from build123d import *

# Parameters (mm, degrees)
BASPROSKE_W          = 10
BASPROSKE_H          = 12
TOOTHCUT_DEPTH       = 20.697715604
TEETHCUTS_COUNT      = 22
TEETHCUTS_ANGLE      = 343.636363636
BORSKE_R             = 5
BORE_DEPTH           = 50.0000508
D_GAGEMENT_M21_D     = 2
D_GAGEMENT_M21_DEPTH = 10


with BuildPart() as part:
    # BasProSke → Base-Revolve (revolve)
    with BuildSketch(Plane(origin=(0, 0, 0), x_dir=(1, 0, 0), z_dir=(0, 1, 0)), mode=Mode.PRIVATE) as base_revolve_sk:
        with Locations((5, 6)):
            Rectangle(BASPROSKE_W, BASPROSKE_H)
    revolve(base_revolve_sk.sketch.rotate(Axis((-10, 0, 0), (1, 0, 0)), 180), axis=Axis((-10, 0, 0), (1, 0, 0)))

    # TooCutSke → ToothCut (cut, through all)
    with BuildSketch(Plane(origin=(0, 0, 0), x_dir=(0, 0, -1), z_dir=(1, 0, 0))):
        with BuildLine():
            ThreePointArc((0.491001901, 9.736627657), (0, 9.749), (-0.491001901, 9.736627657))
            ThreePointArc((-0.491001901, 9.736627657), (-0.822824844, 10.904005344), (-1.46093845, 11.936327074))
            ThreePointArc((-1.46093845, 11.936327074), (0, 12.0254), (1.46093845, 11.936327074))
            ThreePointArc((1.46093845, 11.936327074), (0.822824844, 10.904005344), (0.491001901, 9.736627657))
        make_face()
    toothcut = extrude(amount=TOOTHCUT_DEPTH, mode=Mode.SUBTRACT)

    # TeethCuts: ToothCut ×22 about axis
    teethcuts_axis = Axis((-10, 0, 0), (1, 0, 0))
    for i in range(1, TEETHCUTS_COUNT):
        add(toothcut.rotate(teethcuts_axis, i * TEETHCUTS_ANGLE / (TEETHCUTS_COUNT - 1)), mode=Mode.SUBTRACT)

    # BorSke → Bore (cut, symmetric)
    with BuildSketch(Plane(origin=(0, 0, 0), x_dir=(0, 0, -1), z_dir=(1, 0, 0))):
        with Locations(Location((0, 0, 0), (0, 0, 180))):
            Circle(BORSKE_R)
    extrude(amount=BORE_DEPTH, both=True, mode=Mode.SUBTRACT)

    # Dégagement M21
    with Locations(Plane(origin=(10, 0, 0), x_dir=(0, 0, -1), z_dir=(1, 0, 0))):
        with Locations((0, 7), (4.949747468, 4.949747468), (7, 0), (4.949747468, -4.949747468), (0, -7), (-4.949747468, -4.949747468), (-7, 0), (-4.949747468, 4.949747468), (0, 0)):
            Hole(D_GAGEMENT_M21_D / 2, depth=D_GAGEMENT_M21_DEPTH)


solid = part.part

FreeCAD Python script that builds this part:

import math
import FreeCAD as App
import Part
import Sketcher
from FreeCAD import Vector

doc = App.newDocument("Part")
params = doc.addObject("Spreadsheet::Sheet", "Params")
for row, (alias, value) in enumerate([
    ("sketch1_width", "10 mm"),
    ("sketch1_height", "12 mm"),
    ("revolution_angle", "360 deg"),
    ("sketch2_radius", "4.4 mm"),
    ("sketch3_diameter", "10 mm"),
    ("pocket2_length", "100.000102 mm"),
    ("sketch4_diameter", "2 mm"),
    ("hole_diameter", "2 mm"),
    ("hole_depth", "10 mm"),
], start=1):
    params.set(f"A{row}", alias)
    params.set(f"B{row}", "=" + value)
    params.setAlias(f"B{row}", alias)

body = doc.addObject("PartDesign::Body", "Body")

# Sketch on XZ plane
sketch1 = body.newObject("Sketcher::SketchObject", "Sketch")
sketch1.AttachmentSupport = (doc.getObject("XZ_Plane"), [""])
sketch1.MapMode = "FlatFace"
sketch1.addGeometry([
    Part.LineSegment(Vector(0, -12, 0), Vector(0, 0, 0)),
    Part.LineSegment(Vector(0, 0, 0), Vector(10, 0, 0)),
    Part.LineSegment(Vector(10, 0, 0), Vector(10, -12, 0)),
    Part.LineSegment(Vector(10, -12, 0), Vector(0, -12, 0)),
], False)
sketch1.addConstraint([
    Sketcher.Constraint("Coincident", 0, 2, 1, 1),
    Sketcher.Constraint("Coincident", 1, 2, 2, 1),
    Sketcher.Constraint("Coincident", 2, 2, 3, 1),
    Sketcher.Constraint("Coincident", 3, 2, 0, 1),
    Sketcher.Constraint("Vertical", 0),
    Sketcher.Constraint("Horizontal", 1),
    Sketcher.Constraint("Vertical", 2),
    Sketcher.Constraint("Horizontal", 3),
    Sketcher.Constraint("Coincident", 0, 2, -1, 1),
    Sketcher.Constraint("DistanceX", 1, 1, 1, 2, 10.0),
    Sketcher.Constraint("DistanceY", 0, 1, 0, 2, 12.0),
])
sketch1.setExpression("Constraints[9]", "Params.sketch1_width")
sketch1.setExpression("Constraints[10]", "Params.sketch1_height")
revolution = body.newObject("PartDesign::Revolution", "Revolution")
revolution.Profile = sketch1
revolution.ReferenceAxis = (sketch1, ["H_Axis"])
revolution.setExpression("Angle", "Params.revolution_angle")

# Sketch on YZ plane
sketch2 = body.newObject("Sketcher::SketchObject", "Sketch001")
sketch2.AttachmentSupport = (doc.getObject("YZ_Plane"), [""])
sketch2.MapMode = "FlatFace"
sketch2.addGeometry([
    Part.ArcOfCircle(Part.Circle(Vector(0, 0, 0), Vector(0, 0, 1), 9.749), math.radians(-2.886885), math.radians(2.886885)),
    Part.ArcOfCircle(Part.Circle(Vector(9.128784, -4.848814, 0), Vector(0, 0, 1), 4.4), math.radians(50.351348), math.radians(82.059402)),
    Part.ArcOfCircle(Part.Circle(Vector(0, 0, 0), Vector(0, 0, 1), 12.0254), math.radians(-6.977971), math.radians(6.977971)),
    Part.ArcOfCircle(Part.Circle(Vector(9.128784, 4.848814, 0), Vector(0, 0, 1), 4.4), math.radians(-82.059402), math.radians(-50.351348)),
], False)
sketch2.addConstraint([
    Sketcher.Constraint("Coincident", 0, 1, 1, 2),
    Sketcher.Constraint("Coincident", 1, 1, 2, 1),
    Sketcher.Constraint("Coincident", 2, 2, 3, 2),
    Sketcher.Constraint("Coincident", 3, 1, 0, 2),
    Sketcher.Constraint("Coincident", 0, 3, -1, 1),
    Sketcher.Constraint("Coincident", 2, 3, -1, 1),
    Sketcher.Constraint("Equal", 1, 3),
    Sketcher.Constraint("Symmetric", 1, 3, 3, 3, -1),
    Sketcher.Constraint("Radius", 1, 4.4),
    Sketcher.Constraint("Radius", 0, 9.749),
    Sketcher.Constraint("Radius", 2, 12.0254),
    Sketcher.Constraint("DistanceY", 0, 1, -1, 1, 0.491002),
    Sketcher.Constraint("DistanceX", 0, 1, 1, 1, 2.199699),
])
sketch2.setExpression("Constraints[8]", "Params.sketch2_radius")
pocket1 = body.newObject("PartDesign::Pocket", "Pocket")
pocket1.Profile = sketch2
pocket1.Type = "ThroughAll"
pocket1.Reversed = True
doc.recompute()

polarpattern = body.newObject("PartDesign::PolarPattern", "PolarPattern")
polarpattern.Originals = [pocket1]
polarpattern.Axis = (doc.getObject("X_Axis"), [""])
polarpattern.Angle = 360
polarpattern.Occurrences = 22
body.Tip = polarpattern

# Sketch on YZ plane
sketch3 = body.newObject("Sketcher::SketchObject", "Sketch002")
sketch3.AttachmentSupport = (doc.getObject("YZ_Plane"), [""])
sketch3.MapMode = "FlatFace"
sketch3.addGeometry(Part.Circle(Vector(0, 0, 0), Vector(0, 0, 1), 5), False)
sketch3.addConstraint([
    Sketcher.Constraint("Coincident", 0, 3, -1, 1),
    Sketcher.Constraint("Diameter", 0, 10.0),
])
sketch3.setExpression("Constraints[1]", "Params.sketch3_diameter")
pocket2 = body.newObject("PartDesign::Pocket", "Pocket001")
pocket2.Profile = sketch3
pocket2.setExpression("Length", "Params.pocket2_length")
pocket2.Midplane = True

# Sketch on YZ plane
sketch4 = body.newObject("Sketcher::SketchObject", "Sketch003")
sketch4.AttachmentSupport = (doc.getObject("YZ_Plane"), [""])
sketch4.MapMode = "FlatFace"
sketch4.AttachmentOffset = App.Placement(Vector(0, 0, 10), App.Rotation())
sketch4.addGeometry([
    Part.Circle(Vector(7, 0, 0), Vector(0, 0, 1), 1),  # 0
    Part.Circle(Vector(4.949747, -4.949747, 0), Vector(0, 0, 1), 1),  # 1
    Part.Circle(Vector(0, -7, 0), Vector(0, 0, 1), 1),  # 2
    Part.Circle(Vector(-4.949747, -4.949747, 0), Vector(0, 0, 1), 1),  # 3
    Part.Circle(Vector(-7, 0, 0), Vector(0, 0, 1), 1),  # 4
    Part.Circle(Vector(-4.949747, 4.949747, 0), Vector(0, 0, 1), 1),  # 5
    Part.Circle(Vector(0, 7, 0), Vector(0, 0, 1), 1),  # 6
    Part.Circle(Vector(4.949747, 4.949747, 0), Vector(0, 0, 1), 1),  # 7
    Part.Circle(Vector(0, 0, 0), Vector(0, 0, 1), 1),  # 8
], False)
sketch4.addConstraint([
    Sketcher.Constraint("Coincident", 8, 3, -1, 1),
    Sketcher.Constraint("Equal", 0, 1),
    Sketcher.Constraint("Equal", 1, 2),
    Sketcher.Constraint("Equal", 2, 3),
    Sketcher.Constraint("Equal", 3, 4),
    Sketcher.Constraint("Equal", 4, 5),
    Sketcher.Constraint("Equal", 5, 6),
    Sketcher.Constraint("Equal", 6, 7),
    Sketcher.Constraint("Equal", 7, 8),
    Sketcher.Constraint("Symmetric", 0, 3, 4, 3, -1, 1),
    Sketcher.Constraint("Symmetric", 1, 3, 5, 3, -1, 1),
    Sketcher.Constraint("Symmetric", 2, 3, 6, 3, -1, 1),
    Sketcher.Constraint("Symmetric", 3, 3, 7, 3, -1, 1),
    Sketcher.Constraint("Symmetric", 1, 3, 3, 3, -2),
    Sketcher.Constraint("PointOnObject", 0, 3, -1),
    Sketcher.Constraint("PointOnObject", 2, 3, -2),
    Sketcher.Constraint("Diameter", 0, 2.0),
    Sketcher.Constraint("DistanceX", -1, 1, 0, 3, 7.0),
    Sketcher.Constraint("DistanceY", 2, 3, -1, 1, 7.0),
    Sketcher.Constraint("DistanceX", -1, 1, 1, 3, 4.949747),
    Sketcher.Constraint("DistanceY", 1, 3, -1, 1, 4.949747),
])
sketch4.setExpression("Constraints[16]", "Params.sketch4_diameter")
doc.recompute()
hole = body.newObject("PartDesign::Hole", "Hole")
hole.Profile = sketch4
hole.ThreadType = "None"
hole.setExpression("Diameter", "Params.hole_diameter")
hole.DepthType = "Dimension"
hole.setExpression("Depth", "Params.hole_depth")
hole.DrillPoint = "Flat"

doc.recompute()
